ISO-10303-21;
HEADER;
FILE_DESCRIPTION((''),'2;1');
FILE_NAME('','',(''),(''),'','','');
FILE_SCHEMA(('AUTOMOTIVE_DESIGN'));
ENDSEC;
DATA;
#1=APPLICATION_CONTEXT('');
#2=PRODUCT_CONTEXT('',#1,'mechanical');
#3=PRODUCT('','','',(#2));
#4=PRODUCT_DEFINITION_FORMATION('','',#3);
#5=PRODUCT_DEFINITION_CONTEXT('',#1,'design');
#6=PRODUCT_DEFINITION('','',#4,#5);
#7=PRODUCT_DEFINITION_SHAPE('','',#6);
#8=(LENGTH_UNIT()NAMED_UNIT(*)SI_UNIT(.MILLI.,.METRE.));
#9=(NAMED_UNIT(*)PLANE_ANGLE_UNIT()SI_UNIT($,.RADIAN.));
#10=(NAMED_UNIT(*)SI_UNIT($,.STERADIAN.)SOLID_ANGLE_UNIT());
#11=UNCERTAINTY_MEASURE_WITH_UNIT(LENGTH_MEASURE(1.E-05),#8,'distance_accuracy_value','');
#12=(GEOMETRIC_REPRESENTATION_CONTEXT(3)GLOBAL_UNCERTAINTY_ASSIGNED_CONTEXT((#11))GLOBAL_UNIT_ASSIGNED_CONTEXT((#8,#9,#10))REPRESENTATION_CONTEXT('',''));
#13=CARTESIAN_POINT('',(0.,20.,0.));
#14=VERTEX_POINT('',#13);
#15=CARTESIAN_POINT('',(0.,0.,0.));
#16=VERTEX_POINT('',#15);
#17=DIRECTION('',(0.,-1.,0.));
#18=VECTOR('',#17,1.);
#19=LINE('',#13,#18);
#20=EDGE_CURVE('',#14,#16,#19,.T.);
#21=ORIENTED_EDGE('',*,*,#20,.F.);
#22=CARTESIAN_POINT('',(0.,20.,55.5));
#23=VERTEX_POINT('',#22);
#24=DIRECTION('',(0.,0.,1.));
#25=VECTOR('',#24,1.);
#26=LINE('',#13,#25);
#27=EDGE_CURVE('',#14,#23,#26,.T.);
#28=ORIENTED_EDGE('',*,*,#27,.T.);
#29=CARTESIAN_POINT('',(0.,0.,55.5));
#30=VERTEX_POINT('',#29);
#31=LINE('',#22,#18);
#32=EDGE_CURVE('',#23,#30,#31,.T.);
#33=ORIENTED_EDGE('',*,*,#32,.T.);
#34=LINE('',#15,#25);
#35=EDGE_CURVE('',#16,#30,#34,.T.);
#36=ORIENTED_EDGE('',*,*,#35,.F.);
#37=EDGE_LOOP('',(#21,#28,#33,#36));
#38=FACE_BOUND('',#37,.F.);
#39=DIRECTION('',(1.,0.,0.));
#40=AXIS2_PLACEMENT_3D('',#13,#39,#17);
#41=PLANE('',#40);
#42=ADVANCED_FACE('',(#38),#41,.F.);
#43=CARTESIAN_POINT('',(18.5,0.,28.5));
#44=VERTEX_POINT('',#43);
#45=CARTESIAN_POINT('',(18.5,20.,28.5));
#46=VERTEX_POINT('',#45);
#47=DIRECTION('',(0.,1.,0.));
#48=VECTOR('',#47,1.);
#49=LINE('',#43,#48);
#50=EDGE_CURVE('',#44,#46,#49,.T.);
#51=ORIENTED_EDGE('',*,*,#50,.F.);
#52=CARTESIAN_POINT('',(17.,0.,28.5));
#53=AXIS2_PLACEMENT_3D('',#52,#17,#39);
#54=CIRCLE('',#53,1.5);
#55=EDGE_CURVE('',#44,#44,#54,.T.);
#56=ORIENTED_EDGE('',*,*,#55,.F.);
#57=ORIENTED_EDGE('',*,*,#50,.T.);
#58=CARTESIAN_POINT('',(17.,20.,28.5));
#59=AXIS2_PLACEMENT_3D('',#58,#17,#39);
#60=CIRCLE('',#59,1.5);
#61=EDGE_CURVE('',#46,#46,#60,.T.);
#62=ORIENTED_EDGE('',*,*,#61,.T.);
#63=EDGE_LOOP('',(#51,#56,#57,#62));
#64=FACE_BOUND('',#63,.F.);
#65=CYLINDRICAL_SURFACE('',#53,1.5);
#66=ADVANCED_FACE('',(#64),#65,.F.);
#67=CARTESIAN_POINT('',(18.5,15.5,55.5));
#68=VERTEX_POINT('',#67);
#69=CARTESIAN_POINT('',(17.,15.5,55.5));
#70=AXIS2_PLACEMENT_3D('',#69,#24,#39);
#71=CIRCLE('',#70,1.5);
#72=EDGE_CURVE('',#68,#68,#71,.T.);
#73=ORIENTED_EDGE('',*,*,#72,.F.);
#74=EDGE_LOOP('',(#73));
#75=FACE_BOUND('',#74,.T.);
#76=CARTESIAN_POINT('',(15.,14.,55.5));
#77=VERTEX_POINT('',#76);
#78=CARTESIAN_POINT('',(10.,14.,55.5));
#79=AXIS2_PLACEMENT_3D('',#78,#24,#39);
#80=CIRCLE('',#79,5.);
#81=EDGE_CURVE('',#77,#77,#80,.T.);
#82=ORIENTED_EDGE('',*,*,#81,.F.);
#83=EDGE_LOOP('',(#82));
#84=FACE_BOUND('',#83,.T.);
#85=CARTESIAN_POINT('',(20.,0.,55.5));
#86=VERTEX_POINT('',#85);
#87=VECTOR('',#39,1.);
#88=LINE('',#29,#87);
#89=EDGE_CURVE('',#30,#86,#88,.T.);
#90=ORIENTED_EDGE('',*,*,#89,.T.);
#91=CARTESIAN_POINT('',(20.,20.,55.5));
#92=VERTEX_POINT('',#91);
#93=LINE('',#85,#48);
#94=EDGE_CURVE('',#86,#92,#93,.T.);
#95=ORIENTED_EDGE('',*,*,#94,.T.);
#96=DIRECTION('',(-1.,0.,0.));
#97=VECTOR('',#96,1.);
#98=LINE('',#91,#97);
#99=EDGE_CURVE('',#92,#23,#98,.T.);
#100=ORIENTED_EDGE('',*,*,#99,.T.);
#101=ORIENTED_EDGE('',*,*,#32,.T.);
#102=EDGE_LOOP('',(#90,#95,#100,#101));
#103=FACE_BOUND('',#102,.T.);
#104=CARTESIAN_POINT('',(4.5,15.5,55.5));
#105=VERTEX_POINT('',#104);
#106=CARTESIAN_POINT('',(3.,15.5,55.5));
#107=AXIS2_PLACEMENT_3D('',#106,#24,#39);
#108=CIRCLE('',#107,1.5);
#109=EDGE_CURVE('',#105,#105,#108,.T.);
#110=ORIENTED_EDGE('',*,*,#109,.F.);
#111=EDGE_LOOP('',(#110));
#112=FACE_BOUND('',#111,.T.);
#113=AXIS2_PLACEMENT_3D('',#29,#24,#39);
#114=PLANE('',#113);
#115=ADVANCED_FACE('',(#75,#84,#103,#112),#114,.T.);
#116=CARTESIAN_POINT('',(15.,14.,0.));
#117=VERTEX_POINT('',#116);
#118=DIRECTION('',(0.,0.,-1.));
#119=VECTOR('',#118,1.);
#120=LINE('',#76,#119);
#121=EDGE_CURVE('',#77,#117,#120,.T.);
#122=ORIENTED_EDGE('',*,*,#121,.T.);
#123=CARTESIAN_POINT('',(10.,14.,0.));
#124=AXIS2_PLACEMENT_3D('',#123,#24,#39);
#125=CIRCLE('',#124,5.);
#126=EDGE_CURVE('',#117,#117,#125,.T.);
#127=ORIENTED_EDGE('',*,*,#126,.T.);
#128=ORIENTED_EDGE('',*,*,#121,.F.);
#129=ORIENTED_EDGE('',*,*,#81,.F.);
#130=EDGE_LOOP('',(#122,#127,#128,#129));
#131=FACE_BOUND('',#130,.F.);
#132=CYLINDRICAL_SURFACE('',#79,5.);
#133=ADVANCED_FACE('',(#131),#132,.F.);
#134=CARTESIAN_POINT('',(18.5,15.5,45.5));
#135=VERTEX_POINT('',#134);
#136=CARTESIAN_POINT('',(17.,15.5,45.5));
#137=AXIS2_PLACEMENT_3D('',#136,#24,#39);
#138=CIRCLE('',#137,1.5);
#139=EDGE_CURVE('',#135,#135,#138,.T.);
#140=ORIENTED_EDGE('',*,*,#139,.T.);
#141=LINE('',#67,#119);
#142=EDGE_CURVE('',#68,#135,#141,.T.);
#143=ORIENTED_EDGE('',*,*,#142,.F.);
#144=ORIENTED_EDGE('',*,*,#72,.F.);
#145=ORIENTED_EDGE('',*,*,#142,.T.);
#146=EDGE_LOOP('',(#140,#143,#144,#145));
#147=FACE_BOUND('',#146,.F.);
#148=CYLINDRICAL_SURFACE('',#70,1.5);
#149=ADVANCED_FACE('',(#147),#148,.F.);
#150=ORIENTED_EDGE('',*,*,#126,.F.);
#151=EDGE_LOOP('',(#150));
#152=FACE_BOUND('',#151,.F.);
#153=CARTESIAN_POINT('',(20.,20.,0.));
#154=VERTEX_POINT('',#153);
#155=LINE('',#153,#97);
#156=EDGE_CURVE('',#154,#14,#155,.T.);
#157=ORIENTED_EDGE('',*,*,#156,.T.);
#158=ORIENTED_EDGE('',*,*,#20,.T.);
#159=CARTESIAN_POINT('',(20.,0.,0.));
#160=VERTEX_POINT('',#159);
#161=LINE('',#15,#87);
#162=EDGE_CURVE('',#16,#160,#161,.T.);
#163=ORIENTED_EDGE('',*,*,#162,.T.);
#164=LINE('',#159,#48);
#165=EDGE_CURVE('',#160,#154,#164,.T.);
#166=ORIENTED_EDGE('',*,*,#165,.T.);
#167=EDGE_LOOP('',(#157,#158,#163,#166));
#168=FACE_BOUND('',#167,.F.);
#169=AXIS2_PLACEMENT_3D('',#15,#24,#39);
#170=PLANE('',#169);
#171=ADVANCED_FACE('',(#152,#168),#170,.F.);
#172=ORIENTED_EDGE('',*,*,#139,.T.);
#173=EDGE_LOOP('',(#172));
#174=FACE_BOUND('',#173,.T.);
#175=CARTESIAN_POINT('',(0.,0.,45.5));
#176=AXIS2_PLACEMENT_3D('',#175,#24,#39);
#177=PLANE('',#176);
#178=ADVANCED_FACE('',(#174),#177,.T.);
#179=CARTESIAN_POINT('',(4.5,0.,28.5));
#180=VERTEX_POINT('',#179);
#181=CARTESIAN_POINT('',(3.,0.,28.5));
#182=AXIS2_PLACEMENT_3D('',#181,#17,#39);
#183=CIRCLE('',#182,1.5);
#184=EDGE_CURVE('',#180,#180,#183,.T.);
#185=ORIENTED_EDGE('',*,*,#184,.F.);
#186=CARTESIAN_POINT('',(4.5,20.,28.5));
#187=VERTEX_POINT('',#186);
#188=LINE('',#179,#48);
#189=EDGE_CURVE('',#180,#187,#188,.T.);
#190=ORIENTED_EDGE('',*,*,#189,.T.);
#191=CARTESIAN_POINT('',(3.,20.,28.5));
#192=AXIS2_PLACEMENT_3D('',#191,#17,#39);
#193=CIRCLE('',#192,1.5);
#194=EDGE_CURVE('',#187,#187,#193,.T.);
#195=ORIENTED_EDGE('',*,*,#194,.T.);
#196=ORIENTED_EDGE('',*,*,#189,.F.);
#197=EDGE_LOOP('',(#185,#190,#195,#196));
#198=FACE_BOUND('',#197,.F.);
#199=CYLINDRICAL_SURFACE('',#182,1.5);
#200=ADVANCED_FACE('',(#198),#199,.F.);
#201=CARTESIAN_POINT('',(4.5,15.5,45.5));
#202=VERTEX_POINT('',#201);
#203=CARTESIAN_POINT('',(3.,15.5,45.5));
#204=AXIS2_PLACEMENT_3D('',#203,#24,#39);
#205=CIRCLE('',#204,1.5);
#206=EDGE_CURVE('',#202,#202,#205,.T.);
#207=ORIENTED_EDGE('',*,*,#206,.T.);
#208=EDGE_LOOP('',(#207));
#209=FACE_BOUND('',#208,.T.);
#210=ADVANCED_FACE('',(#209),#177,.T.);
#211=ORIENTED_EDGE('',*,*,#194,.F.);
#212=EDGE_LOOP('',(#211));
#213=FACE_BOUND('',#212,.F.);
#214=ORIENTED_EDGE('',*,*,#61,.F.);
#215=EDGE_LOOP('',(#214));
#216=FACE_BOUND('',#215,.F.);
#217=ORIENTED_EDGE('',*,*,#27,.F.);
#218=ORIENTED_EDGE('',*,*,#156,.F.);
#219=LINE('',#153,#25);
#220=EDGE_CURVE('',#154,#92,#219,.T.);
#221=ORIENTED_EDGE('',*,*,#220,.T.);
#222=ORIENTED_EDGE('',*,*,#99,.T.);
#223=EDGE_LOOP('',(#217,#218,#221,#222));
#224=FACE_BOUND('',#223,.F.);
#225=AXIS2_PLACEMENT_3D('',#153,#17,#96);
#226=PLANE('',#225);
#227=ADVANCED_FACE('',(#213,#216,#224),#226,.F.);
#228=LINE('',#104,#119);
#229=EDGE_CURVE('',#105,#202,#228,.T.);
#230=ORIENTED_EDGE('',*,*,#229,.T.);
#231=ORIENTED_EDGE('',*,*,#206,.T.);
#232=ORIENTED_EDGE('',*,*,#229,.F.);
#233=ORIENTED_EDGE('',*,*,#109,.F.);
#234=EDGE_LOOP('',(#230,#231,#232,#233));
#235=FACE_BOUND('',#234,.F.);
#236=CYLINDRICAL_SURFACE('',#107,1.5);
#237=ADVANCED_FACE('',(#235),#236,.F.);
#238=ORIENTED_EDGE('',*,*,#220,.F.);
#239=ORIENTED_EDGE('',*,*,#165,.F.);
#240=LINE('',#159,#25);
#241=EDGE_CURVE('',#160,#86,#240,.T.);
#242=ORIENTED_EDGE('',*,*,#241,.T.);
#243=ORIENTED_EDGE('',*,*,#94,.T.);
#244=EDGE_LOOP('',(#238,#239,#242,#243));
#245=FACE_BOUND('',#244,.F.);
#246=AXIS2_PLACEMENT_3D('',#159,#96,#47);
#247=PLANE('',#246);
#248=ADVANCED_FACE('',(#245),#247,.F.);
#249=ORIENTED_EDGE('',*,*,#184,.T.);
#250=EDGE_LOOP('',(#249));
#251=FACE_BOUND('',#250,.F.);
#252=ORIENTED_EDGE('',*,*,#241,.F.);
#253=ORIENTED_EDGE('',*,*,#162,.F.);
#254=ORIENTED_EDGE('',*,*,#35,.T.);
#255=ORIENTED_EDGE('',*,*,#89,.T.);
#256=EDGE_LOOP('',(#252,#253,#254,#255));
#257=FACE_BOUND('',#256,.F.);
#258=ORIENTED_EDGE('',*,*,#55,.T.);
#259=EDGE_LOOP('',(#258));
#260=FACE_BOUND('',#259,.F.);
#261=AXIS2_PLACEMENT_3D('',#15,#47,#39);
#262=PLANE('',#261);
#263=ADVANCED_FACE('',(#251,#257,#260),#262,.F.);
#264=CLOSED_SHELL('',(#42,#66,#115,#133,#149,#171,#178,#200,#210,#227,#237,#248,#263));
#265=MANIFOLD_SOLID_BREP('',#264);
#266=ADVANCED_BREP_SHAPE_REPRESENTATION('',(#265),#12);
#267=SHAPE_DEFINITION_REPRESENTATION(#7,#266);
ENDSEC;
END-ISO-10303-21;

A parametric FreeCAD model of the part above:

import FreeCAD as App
import Part
import Sketcher
Q = App.Units.Quantity


def add_polygon(sketch, points):
    """Adds a closed chain of lines whose ends are joined by coincident constraints."""
    first, n = sketch.GeometryCount, len(points)
    for a, b in zip(points, points[1:] + points[:1]):
        sketch.addGeometry(Part.LineSegment(App.Vector(*a, 0), App.Vector(*b, 0)), False)
    for i in range(n):
        sketch.addConstraint(Sketcher.Constraint("Coincident", first + i, 2, first + (i + 1) % n, 1))

doc = App.newDocument("Part")
body = doc.addObject("PartDesign::Body", "Body")

# Sketch on XY plane
sketch1 = body.newObject("Sketcher::SketchObject", "Sketch")
sketch1.AttachmentSupport = (doc.getObject("XY_Plane"), [""])
sketch1.MapMode = "FlatFace"
add_polygon(sketch1, [(0, 20), (0, 0), (20, 0), (20, 20)])  # lines 0-3
sketch1.addConstraint([
    Sketcher.Constraint("Vertical", 0),
    Sketcher.Constraint("Horizontal", 1),
    Sketcher.Constraint("Vertical", 2),
    Sketcher.Constraint("Horizontal", 3),
    Sketcher.Constraint("Coincident", 0, 2, -1, 1),
    Sketcher.Constraint("Equal", 3, 0),
    Sketcher.Constraint("DistanceX", 1, 1, 1, 2, Q("20 mm")),
])
pad1 = body.newObject("PartDesign::Pad", "Pad")
pad1.Profile = sketch1
pad1.Length = 55.5

# Sketch on XZ plane
sketch2 = body.newObject("Sketcher::SketchObject", "Sketch001")
sketch2.AttachmentSupport = (doc.getObject("XZ_Plane"), [""])
sketch2.MapMode = "FlatFace"
sketch2.addGeometry([
    Part.Circle(App.Vector(17, 28.5, 0), App.Vector(0, 0, 1), 1.5),
    Part.Circle(App.Vector(3, 28.5, 0), App.Vector(0, 0, 1), 1.5),
], False)
sketch2.addConstraint([
    Sketcher.Constraint("Equal", 0, 1),
    Sketcher.Constraint("Horizontal", 0, 3, 1, 3),
    Sketcher.Constraint("Diameter", 0, Q("3 mm")),
    Sketcher.Constraint("DistanceX", -1, 1, 1, 3, Q("3 mm")),
    Sketcher.Constraint("DistanceX", 1, 3, 0, 3, Q("14 mm")),
    Sketcher.Constraint("DistanceY", -1, 1, 0, 3, Q("28.5 mm")),
])
pocket1 = body.newObject("PartDesign::Pocket", "Pocket")
pocket1.Profile = sketch2
pocket1.Type = "ThroughAll"

# Sketch on XY plane
sketch3 = body.newObject("Sketcher::SketchObject", "Sketch002")
sketch3.AttachmentSupport = (doc.getObject("XY_Plane"), [""])
sketch3.MapMode = "FlatFace"
sketch3.AttachmentOffset = App.Placement(App.Vector(0, 0, 55.5), App.Rotation())
sketch3.addGeometry([
    Part.Circle(App.Vector(17, 15.5, 0), App.Vector(0, 0, 1), 1.5),
    Part.Circle(App.Vector(3, 15.5, 0), App.Vector(0, 0, 1), 1.5),
], False)
sketch3.addConstraint([
    Sketcher.Constraint("Equal", 0, 1),
    Sketcher.Constraint("Horizontal", 0, 3, 1, 3),
    Sketcher.Constraint("Diameter", 0, Q("3 mm")),
    Sketcher.Constraint("DistanceX", -1, 1, 1, 3, Q("3 mm")),
    Sketcher.Constraint("DistanceX", 1, 3, 0, 3, Q("14 mm")),
    Sketcher.Constraint("DistanceY", -1, 1, 0, 3, Q("15.5 mm")),
])
pocket2 = body.newObject("PartDesign::Pocket", "Pocket001")
pocket2.Profile = sketch3
pocket2.Length = 10

# Sketch on XY plane
sketch4 = body.newObject("Sketcher::SketchObject", "Sketch003")
sketch4.AttachmentSupport = (doc.getObject("XY_Plane"), [""])
sketch4.MapMode = "FlatFace"
sketch4.AttachmentOffset = App.Placement(App.Vector(0, 0, 55.5), App.Rotation())
sketch4.addGeometry(Part.Circle(App.Vector(10, 14, 0), App.Vector(0, 0, 1), 5), False)
sketch4.addConstraint([
    Sketcher.Constraint("Diameter", 0, Q("10 mm")),
    Sketcher.Constraint("DistanceX", -1, 1, 0, 3, Q("10 mm")),
    Sketcher.Constraint("DistanceY", -1, 1, 0, 3, Q("14 mm")),
])
pocket3 = body.newObject("PartDesign::Pocket", "Pocket002")
pocket3.Profile = sketch4
pocket3.Type = "ThroughAll"

doc.recompute()
